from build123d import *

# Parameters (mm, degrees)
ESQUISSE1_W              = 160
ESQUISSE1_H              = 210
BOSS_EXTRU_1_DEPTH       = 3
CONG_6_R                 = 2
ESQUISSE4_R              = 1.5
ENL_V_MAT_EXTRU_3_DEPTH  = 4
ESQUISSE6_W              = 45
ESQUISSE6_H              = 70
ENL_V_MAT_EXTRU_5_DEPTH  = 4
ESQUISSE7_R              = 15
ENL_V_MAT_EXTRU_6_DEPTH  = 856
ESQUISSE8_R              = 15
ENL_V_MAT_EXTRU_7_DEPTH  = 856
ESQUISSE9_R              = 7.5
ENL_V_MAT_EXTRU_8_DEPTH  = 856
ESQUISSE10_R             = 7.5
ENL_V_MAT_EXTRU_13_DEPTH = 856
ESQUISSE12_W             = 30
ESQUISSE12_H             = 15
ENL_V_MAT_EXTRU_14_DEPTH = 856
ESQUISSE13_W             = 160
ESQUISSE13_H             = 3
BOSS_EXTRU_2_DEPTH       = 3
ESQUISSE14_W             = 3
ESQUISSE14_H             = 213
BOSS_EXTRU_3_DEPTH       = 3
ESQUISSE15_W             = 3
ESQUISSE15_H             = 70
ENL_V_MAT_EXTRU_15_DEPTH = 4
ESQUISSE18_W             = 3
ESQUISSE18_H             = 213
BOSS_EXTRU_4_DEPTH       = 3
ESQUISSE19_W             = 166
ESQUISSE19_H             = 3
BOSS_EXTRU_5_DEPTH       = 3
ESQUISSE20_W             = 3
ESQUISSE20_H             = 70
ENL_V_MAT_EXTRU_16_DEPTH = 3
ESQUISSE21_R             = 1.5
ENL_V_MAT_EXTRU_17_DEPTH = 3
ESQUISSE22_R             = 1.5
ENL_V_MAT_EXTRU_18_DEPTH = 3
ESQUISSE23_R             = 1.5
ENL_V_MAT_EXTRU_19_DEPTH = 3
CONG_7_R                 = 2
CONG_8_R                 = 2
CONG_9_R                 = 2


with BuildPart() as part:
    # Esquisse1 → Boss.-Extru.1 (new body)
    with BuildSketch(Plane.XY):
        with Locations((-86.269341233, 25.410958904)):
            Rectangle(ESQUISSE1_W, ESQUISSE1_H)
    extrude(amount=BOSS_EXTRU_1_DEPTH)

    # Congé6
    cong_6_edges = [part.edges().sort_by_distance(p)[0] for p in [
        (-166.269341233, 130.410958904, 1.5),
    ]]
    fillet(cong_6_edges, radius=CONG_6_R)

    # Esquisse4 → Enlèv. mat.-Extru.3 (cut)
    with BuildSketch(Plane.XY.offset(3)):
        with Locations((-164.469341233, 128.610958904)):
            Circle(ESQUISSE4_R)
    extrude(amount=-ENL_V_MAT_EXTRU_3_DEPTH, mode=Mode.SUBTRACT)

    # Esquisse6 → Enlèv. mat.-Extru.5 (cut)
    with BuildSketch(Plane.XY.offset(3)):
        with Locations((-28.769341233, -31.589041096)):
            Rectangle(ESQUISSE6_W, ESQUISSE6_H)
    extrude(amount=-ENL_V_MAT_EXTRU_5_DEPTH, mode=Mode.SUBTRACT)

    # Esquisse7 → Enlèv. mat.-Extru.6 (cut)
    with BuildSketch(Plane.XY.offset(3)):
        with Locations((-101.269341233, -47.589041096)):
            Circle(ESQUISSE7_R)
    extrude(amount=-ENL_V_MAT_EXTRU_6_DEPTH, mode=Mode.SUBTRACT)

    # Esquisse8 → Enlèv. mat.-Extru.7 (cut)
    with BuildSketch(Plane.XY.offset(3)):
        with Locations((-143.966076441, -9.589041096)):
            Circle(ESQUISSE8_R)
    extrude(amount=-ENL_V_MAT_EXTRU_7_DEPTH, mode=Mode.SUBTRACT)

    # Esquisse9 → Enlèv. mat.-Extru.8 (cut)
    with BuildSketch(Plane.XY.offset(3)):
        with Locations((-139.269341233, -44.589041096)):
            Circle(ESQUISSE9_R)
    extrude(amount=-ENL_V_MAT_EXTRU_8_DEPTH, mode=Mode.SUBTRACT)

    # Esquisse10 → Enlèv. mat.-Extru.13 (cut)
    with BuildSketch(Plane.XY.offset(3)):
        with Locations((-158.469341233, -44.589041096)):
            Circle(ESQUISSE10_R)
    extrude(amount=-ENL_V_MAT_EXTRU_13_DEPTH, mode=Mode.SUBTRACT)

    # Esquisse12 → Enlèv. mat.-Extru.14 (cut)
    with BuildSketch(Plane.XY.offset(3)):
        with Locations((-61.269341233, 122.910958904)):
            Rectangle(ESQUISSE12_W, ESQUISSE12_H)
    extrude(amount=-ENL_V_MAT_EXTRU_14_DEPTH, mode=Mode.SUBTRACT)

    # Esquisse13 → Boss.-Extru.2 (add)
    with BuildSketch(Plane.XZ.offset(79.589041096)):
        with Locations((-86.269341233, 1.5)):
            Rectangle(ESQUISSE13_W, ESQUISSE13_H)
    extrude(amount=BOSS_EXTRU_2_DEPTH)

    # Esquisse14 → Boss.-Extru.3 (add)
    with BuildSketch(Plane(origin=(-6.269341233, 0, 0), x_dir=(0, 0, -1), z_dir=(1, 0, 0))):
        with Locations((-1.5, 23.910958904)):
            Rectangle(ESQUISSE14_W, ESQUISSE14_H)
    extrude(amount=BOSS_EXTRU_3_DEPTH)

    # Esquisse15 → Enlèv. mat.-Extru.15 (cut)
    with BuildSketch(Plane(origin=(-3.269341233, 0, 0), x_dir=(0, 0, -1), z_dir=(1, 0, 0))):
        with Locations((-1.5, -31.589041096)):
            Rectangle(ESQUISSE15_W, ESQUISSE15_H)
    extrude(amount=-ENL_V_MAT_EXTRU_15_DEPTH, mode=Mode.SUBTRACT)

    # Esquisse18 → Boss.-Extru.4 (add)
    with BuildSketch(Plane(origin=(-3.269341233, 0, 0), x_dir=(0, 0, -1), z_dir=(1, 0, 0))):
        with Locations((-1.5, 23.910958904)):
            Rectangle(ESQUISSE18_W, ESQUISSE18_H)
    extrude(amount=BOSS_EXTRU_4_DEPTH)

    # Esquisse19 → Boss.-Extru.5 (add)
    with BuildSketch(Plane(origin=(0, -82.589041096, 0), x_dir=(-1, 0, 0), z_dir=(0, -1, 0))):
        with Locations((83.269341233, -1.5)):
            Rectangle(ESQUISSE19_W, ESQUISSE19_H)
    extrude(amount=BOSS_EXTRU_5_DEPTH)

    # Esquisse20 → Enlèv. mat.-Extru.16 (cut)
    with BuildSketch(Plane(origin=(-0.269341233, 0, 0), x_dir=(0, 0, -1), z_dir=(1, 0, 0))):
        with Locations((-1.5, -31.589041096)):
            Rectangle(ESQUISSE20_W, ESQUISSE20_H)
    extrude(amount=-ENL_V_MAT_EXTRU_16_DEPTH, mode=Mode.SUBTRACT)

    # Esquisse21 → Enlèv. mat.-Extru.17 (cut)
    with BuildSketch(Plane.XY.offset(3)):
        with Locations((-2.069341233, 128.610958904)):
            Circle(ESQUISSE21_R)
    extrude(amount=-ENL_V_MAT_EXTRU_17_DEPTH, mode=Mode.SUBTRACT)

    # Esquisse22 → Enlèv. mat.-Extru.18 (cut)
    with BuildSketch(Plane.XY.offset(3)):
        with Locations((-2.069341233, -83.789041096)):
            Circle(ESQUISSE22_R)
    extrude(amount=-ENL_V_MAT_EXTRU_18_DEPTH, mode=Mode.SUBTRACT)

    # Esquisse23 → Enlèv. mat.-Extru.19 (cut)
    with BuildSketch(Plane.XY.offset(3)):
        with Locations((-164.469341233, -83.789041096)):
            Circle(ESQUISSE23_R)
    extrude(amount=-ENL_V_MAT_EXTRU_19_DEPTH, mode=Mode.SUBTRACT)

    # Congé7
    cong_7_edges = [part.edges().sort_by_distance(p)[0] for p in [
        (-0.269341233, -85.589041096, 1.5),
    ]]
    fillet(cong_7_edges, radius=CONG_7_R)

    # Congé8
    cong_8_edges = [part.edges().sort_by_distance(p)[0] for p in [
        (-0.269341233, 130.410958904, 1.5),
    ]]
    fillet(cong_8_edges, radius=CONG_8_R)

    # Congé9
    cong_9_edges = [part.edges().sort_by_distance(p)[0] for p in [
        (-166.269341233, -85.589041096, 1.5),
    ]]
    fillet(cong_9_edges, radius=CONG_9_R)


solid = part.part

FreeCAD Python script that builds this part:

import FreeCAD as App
import Part
import Sketcher

V = App.Vector
Q = App.Units.Quantity


def edges_at(feature, points):
    """Names of the edges that pass closest to the given points."""
    edges = feature.Shape.Edges
    near = lambda p: min(range(len(edges)), key=lambda i: edges[i].distToShape(Part.Vertex(*p))[0])
    return sorted({f"Edge{near(p) + 1}" for p in points})


def add_polygon(sketch, points):
    """Adds a closed chain of lines whose ends are joined by coincident constraints."""
    first, n = sketch.GeometryCount, len(points)
    for a, b in zip(points, points[1:] + points[:1]):
        sketch.addGeometry(Part.LineSegment(App.Vector(*a, 0), App.Vector(*b, 0)), False)
    for i in range(n):
        sketch.addConstraint(Sketcher.Constraint("Coincident", first + i, 2, first + (i + 1) % n, 1))

doc = App.newDocument("Part")
body = doc.addObject("PartDesign::Body", "Body")

sketch1 = doc.addObject("Sketcher::SketchObject", "Sketch")
body.addObject(sketch1)
sketch1.AttachmentSupport = (doc.XY_Plane, [""])
sketch1.MapMode = "FlatFace"
add_polygon(sketch1, [(-166, 130), (-166, -80), (-6, -80), (-6, 130)])
sketch1.addConstraint(Sketcher.Constraint("Vertical", 0))
sketch1.addConstraint(Sketcher.Constraint("Horizontal", 1))
sketch1.addConstraint(Sketcher.Constraint("Vertical", 2))
sketch1.addConstraint(Sketcher.Constraint("Horizontal", 3))
sketch1.addConstraint(Sketcher.Constraint("DistanceX", 1, 1, 1, 2, Q("160 mm")))
sketch1.addConstraint(Sketcher.Constraint("DistanceY", 0, 2, 0, 1, Q("210 mm")))
sketch1.addConstraint(Sketcher.Constraint("DistanceX", 0, 2, -1, 1, Q("166.269341 mm")))
sketch1.addConstraint(Sketcher.Constraint("DistanceY", 0, 2, -1, 1, Q("79.589041 mm")))
pad1 = doc.addObject("PartDesign::Pad", "Pad")
body.addObject(pad1)
pad1.Profile = sketch1
pad1.Length = 3
doc.recompute()

fillet = doc.addObject("PartDesign::Fillet", "Fillet")
body.addObject(fillet)
fillet.Base = (pad1, edges_at(pad1, [(-166.269, 130.411, 1.5)]))
fillet.Radius = 2

sketch2 = doc.addObject("Sketcher::SketchObject", "Sketch001")
body.addObject(sketch2)
sketch2.AttachmentSupport = (doc.XY_Plane, [""])
sketch2.MapMode = "FlatFace"
sketch2.AttachmentOffset = App.Placement(V(0, 0, 3), App.Rotation())
sketch2.addGeometry(Part.Circle(V(-164.5, 128.6, 0), V(0, 0, 1), 1.5), False)
sketch2.addConstraint(Sketcher.Constraint("Diameter", 0, Q("3 mm")))
sketch2.addConstraint(Sketcher.Constraint("DistanceX", 0, 3, -1, 1, Q("164.469341 mm")))
sketch2.addConstraint(Sketcher.Constraint("DistanceY", -1, 1, 0, 3, Q("128.610959 mm")))
pocket1 = doc.addObject("PartDesign::Pocket", "Pocket")
body.addObject(pocket1)
pocket1.Profile = sketch2
pocket1.Length = 4

sketch3 = doc.addObject("Sketcher::SketchObject", "Sketch002")
body.addObject(sketch3)
sketch3.AttachmentSupport = (doc.XY_Plane, [""])
sketch3.MapMode = "FlatFace"
sketch3.AttachmentOffset = App.Placement(V(0, 0, 3), App.Rotation())
add_polygon(sketch3, [(-51, 3), (-51, -67), (-6, -67), (-6, 3)])
sketch3.addConstraint(Sketcher.Constraint("Vertical", 0))
sketch3.addConstraint(Sketcher.Constraint("Horizontal", 1))
sketch3.addConstraint(Sketcher.Constraint("Vertical", 2))
sketch3.addConstraint(Sketcher.Constraint("Horizontal", 3))
sketch3.addConstraint(Sketcher.Constraint("DistanceX", 1, 1, 1, 2, Q("45 mm")))
sketch3.addConstraint(Sketcher.Constraint("DistanceY", 0, 2, 0, 1, Q("70 mm")))
sketch3.addConstraint(Sketcher.Constraint("DistanceX", 0, 2, -1, 1, Q("51.269341 mm")))
sketch3.addConstraint(Sketcher.Constraint("DistanceY", 0, 2, -1, 1, Q("66.589041 mm")))
pocket2 = doc.addObject("PartDesign::Pocket", "Pocket001")
body.addObject(pocket2)
pocket2.Profile = sketch3
pocket2.Length = 4

sketch4 = doc.addObject("Sketcher::SketchObject", "Sketch003")
body.addObject(sketch4)
sketch4.AttachmentSupport = (doc.XY_Plane, [""])
sketch4.MapMode = "FlatFace"
sketch4.AttachmentOffset = App.Placement(V(0, 0, 3), App.Rotation())
sketch4.addGeometry(Part.Circle(V(-101, -48, 0), V(0, 0, 1), 15), False)
sketch4.addConstraint(Sketcher.Constraint("Diameter", 0, Q("30 mm")))
sketch4.addConstraint(Sketcher.Constraint("DistanceX", 0, 3, -1, 1, Q("101.269341 mm")))
sketch4.addConstraint(Sketcher.Constraint("DistanceY", 0, 3, -1, 1, Q("47.589041 mm")))
pocket3 = doc.addObject("PartDesign::Pocket", "Pocket002")
body.addObject(pocket3)
pocket3.Profile = sketch4
pocket3.Length = 856

sketch5 = doc.addObject("Sketcher::SketchObject", "Sketch004")
body.addObject(sketch5)
sketch5.AttachmentSupport = (doc.XY_Plane, [""])
sketch5.MapMode = "FlatFace"
sketch5.AttachmentOffset = App.Placement(V(0, 0, 3), App.Rotation())
sketch5.addGeometry(Part.Circle(V(-144, -10, 0), V(0, 0, 1), 15), False)
sketch5.addConstraint(Sketcher.Constraint("Diameter", 0, Q("30 mm")))
sketch5.addConstraint(Sketcher.Constraint("DistanceY", 0, 3, -1, 1, Q("9.589041 mm")))
sketch5.addConstraint(Sketcher.Constraint("DistanceX", 0, 3, -1, 1, Q("143.966076 mm")))
pocket4 = doc.addObject("PartDesign::Pocket", "Pocket003")
body.addObject(pocket4)
pocket4.Profile = sketch5
pocket4.Length = 856

sketch6 = doc.addObject("Sketcher::SketchObject", "Sketch005")
body.addObject(sketch6)
sketch6.AttachmentSupport = (doc.XY_Plane, [""])
sketch6.MapMode = "FlatFace"
sketch6.AttachmentOffset = App.Placement(V(0, 0, 3), App.Rotation())
sketch6.addGeometry(Part.Circle(V(-139, -45, 0), V(0, 0, 1), 8), False)
sketch6.addConstraint(Sketcher.Constraint("Diameter", 0, Q("15 mm")))
sketch6.addConstraint(Sketcher.Constraint("DistanceX", 0, 3, -1, 1, Q("139.269341 mm")))
sketch6.addConstraint(Sketcher.Constraint("DistanceY", 0, 3, -1, 1, Q("44.589041 mm")))
pocket5 = doc.addObject("PartDesign::Pocket", "Pocket004")
body.addObject(pocket5)
pocket5.Profile = sketch6
pocket5.Length = 856

sketch7 = doc.addObject("Sketcher::SketchObject", "Sketch006")
body.addObject(sketch7)
sketch7.AttachmentSupport = (doc.XY_Plane, [""])
sketch7.MapMode = "FlatFace"
sketch7.AttachmentOffset = App.Placement(V(0, 0, 3), App.Rotation())
sketch7.addGeometry(Part.Circle(V(-158, -45, 0), V(0, 0, 1), 8), False)
sketch7.addConstraint(Sketcher.Constraint("Diameter", 0, Q("15 mm")))
sketch7.addConstraint(Sketcher.Constraint("DistanceX", 0, 3, -1, 1, Q("158.469341 mm")))
sketch7.addConstraint(Sketcher.Constraint("DistanceY", 0, 3, -1, 1, Q("44.589041 mm")))
pocket6 = doc.addObject("PartDesign::Pocket", "Pocket005")
body.addObject(pocket6)
pocket6.Profile = sketch7
pocket6.Length = 856

sketch8 = doc.addObject("Sketcher::SketchObject", "Sketch007")
body.addObject(sketch8)
sketch8.AttachmentSupport = (doc.XY_Plane, [""])
sketch8.MapMode = "FlatFace"
sketch8.AttachmentOffset = App.Placement(V(0, 0, 3), App.Rotation())
add_polygon(sketch8, [(-76, 130), (-76, 115), (-46, 115), (-46, 130)])
sketch8.addConstraint(Sketcher.Constraint("Vertical", 0))
sketch8.addConstraint(Sketcher.Constraint("Horizontal", 1))
sketch8.addConstraint(Sketcher.Constraint("Vertical", 2))
sketch8.addConstraint(Sketcher.Constraint("Horizontal", 3))
sketch8.addConstraint(Sketcher.Constraint("DistanceX", 1, 1, 1, 2, Q("30 mm")))
sketch8.addConstraint(Sketcher.Constraint("DistanceY", 0, 2, 0, 1, Q("15 mm")))
sketch8.addConstraint(Sketcher.Constraint("DistanceX", 0, 2, -1, 1, Q("76.269341 mm")))
sketch8.addConstraint(Sketcher.Constraint("DistanceY", -1, 1, 0, 2, Q("115.410959 mm")))
pocket7 = doc.addObject("PartDesign::Pocket", "Pocket006")
body.addObject(pocket7)
pocket7.Profile = sketch8
pocket7.Length = 856

sketch9 = doc.addObject("Sketcher::SketchObject", "Sketch008")
body.addObject(sketch9)
sketch9.AttachmentSupport = (doc.XZ_Plane, [""])
sketch9.MapMode = "FlatFace"
sketch9.AttachmentOffset = App.Placement(V(0, 0, 79.589041), App.Rotation())
add_polygon(sketch9, [(-166.3, 3), (-166.3, 0), (-6.3, 0), (-6.3, 3)])
sketch9.addConstraint(Sketcher.Constraint("Vertical", 0))
sketch9.addConstraint(Sketcher.Constraint("Horizontal", 1))
sketch9.addConstraint(Sketcher.Constraint("Vertical", 2))
sketch9.addConstraint(Sketcher.Constraint("Horizontal", 3))
sketch9.addConstraint(Sketcher.Constraint("PointOnObject", 0, 2, -1))
sketch9.addConstraint(Sketcher.Constraint("DistanceX", 1, 1, 1, 2, Q("160 mm")))
sketch9.addConstraint(Sketcher.Constraint("DistanceY", 0, 2, 0, 1, Q("3 mm")))
sketch9.addConstraint(Sketcher.Constraint("DistanceX", 0, 2, -1, 1, Q("166.269341 mm")))
pad2 = doc.addObject("PartDesign::Pad", "Pad001")
body.addObject(pad2)
pad2.Profile = sketch9
pad2.Length = 3

sketch10 = doc.addObject("Sketcher::SketchObject", "Sketch009")
body.addObject(sketch10)
sketch10.AttachmentSupport = (doc.YZ_Plane, [""])
sketch10.MapMode = "FlatFace"
sketch10.AttachmentOffset = App.Placement(V(0, 0, -6.269341), App.Rotation())
add_polygon(sketch10, [(130.4, 3), (-82.6, 3), (-82.6, 0), (130.4, 0)])
sketch10.addConstraint(Sketcher.Constraint("Horizontal", 0))
sketch10.addConstraint(Sketcher.Constraint("Vertical", 1))
sketch10.addConstraint(Sketcher.Constraint("Horizontal", 2))
sketch10.addConstraint(Sketcher.Constraint("Vertical", 3))
sketch10.addConstraint(Sketcher.Constraint("PointOnObject", 1, 2, -1))
sketch10.addConstraint(Sketcher.Constraint("DistanceX", 0, 2, 0, 1, Q("213 mm")))
sketch10.addConstraint(Sketcher.Constraint("DistanceY", 1, 2, 1, 1, Q("3 mm")))
sketch10.addConstraint(Sketcher.Constraint("DistanceX", 0, 2, -1, 1, Q("82.589041 mm")))
pad3 = doc.addObject("PartDesign::Pad", "Pad002")
body.addObject(pad3)
pad3.Profile = sketch10
pad3.Length = 3

sketch11 = doc.addObject("Sketcher::SketchObject", "Sketch010")
body.addObject(sketch11)
sketch11.AttachmentSupport = (doc.YZ_Plane, [""])
sketch11.MapMode = "FlatFace"
sketch11.AttachmentOffset = App.Placement(V(0, 0, -3.269341), App.Rotation())
add_polygon(sketch11, [(3.4, 3), (-66.6, 3), (-66.6, 0), (3.4, 0)])
sketch11.addConstraint(Sketcher.Constraint("Horizontal", 0))
sketch11.addConstraint(Sketcher.Constraint("Vertical", 1))
sketch11.addConstraint(Sketcher.Constraint("Horizontal", 2))
sketch11.addConstraint(Sketcher.Constraint("Vertical", 3))
sketch11.addConstraint(Sketcher.Constraint("PointOnObject", 1, 2, -1))
sketch11.addConstraint(Sketcher.Constraint("DistanceX", 0, 2, 0, 1, Q("70 mm")))
sketch11.addConstraint(Sketcher.Constraint("DistanceY", 1, 2, 1, 1, Q("3 mm")))
sketch11.addConstraint(Sketcher.Constraint("DistanceX", 0, 2, -1, 1, Q("66.589041 mm")))
pocket8 = doc.addObject("PartDesign::Pocket", "Pocket007")
body.addObject(pocket8)
pocket8.Profile = sketch11
pocket8.Length = 4

sketch12 = doc.addObject("Sketcher::SketchObject", "Sketch011")
body.addObject(sketch12)
sketch12.AttachmentSupport = (doc.YZ_Plane, [""])
sketch12.MapMode = "FlatFace"
sketch12.AttachmentOffset = App.Placement(V(0, 0, -3.269341), App.Rotation())
add_polygon(sketch12, [(130.4, 3), (-82.6, 3), (-82.6, 0), (130.4, 0)])
sketch12.addConstraint(Sketcher.Constraint("Horizontal", 0))
sketch12.addConstraint(Sketcher.Constraint("Vertical", 1))
sketch12.addConstraint(Sketcher.Constraint("Horizontal", 2))
sketch12.addConstraint(Sketcher.Constraint("Vertical", 3))
sketch12.addConstraint(Sketcher.Constraint("PointOnObject", 1, 2, -1))
sketch12.addConstraint(Sketcher.Constraint("DistanceX", 0, 2, 0, 1, Q("213 mm")))
sketch12.addConstraint(Sketcher.Constraint("DistanceY", 1, 2, 1, 1, Q("3 mm")))
sketch12.addConstraint(Sketcher.Constraint("DistanceX", 0, 2, -1, 1, Q("82.589041 mm")))
pad4 = doc.addObject("PartDesign::Pad", "Pad003")
body.addObject(pad4)
pad4.Profile = sketch12
pad4.Length = 3

sketch13 = doc.addObject("Sketcher::SketchObject", "Sketch012")
body.addObject(sketch13)
sketch13.AttachmentSupport = (doc.XZ_Plane, [""])
sketch13.MapMode = "FlatFace"
sketch13.AttachmentOffset = App.Placement(V(0, 0, 82.589041), App.Rotation())
add_polygon(sketch13, [(-0.3, 0), (-0.3, 3), (-166.3, 3), (-166.3, 0)])
sketch13.addConstraint(Sketcher.Constraint("Vertical", 0))
sketch13.addConstraint(Sketcher.Constraint("Horizontal", 1))
sketch13.addConstraint(Sketcher.Constraint("Vertical", 2))
sketch13.addConstraint(Sketcher.Constraint("Horizontal", 3))
sketch13.addConstraint(Sketcher.Constraint("PointOnObject", 2, 2, -1))
sketch13.addConstraint(Sketcher.Constraint("DistanceX", 1, 2, 1, 1, Q("166 mm")))
sketch13.addConstraint(Sketcher.Constraint("DistanceY", 0, 1, 0, 2, Q("3 mm")))
sketch13.addConstraint(Sketcher.Constraint("DistanceX", 0, 2, -1, 1, Q("0.269341 mm")))
pad5 = doc.addObject("PartDesign::Pad", "Pad004")
body.addObject(pad5)
pad5.Profile = sketch13
pad5.Length = 3

sketch14 = doc.addObject("Sketcher::SketchObject", "Sketch013")
body.addObject(sketch14)
sketch14.AttachmentSupport = (doc.YZ_Plane, [""])
sketch14.MapMode = "FlatFace"
sketch14.AttachmentOffset = App.Placement(V(0, 0, -0.269341), App.Rotation())
add_polygon(sketch14, [(3.4, 3), (-66.6, 3), (-66.6, 0), (3.4, 0)])
sketch14.addConstraint(Sketcher.Constraint("Horizontal", 0))
sketch14.addConstraint(Sketcher.Constraint("Vertical", 1))
sketch14.addConstraint(Sketcher.Constraint("Horizontal", 2))
sketch14.addConstraint(Sketcher.Constraint("Vertical", 3))
sketch14.addConstraint(Sketcher.Constraint("PointOnObject", 1, 2, -1))
sketch14.addConstraint(Sketcher.Constraint("DistanceX", 0, 2, 0, 1, Q("70 mm")))
sketch14.addConstraint(Sketcher.Constraint("DistanceY", 1, 2, 1, 1, Q("3 mm")))
sketch14.addConstraint(Sketcher.Constraint("DistanceX", 0, 2, -1, 1, Q("66.589041 mm")))
pocket9 = doc.addObject("PartDesign::Pocket", "Pocket008")
body.addObject(pocket9)
pocket9.Profile = sketch14
pocket9.Length = 3

sketch15 = doc.addObject("Sketcher::SketchObject", "Sketch014")
body.addObject(sketch15)
sketch15.AttachmentSupport = (doc.XY_Plane, [""])
sketch15.MapMode = "FlatFace"
sketch15.AttachmentOffset = App.Placement(V(0, 0, 3), App.Rotation())
sketch15.addGeometry(Part.Circle(V(-2.1, 128.6, 0), V(0, 0, 1), 1.5), False)
sketch15.addConstraint(Sketcher.Constraint("Diameter", 0, Q("3 mm")))
sketch15.addConstraint(Sketcher.Constraint("DistanceX", 0, 3, -1, 1, Q("2.069341 mm")))
sketch15.addConstraint(Sketcher.Constraint("DistanceY", -1, 1, 0, 3, Q("128.610959 mm")))
pocket10 = doc.addObject("PartDesign::Pocket", "Pocket009")
body.addObject(pocket10)
pocket10.Profile = sketch15
pocket10.Length = 3

sketch16 = doc.addObject("Sketcher::SketchObject", "Sketch015")
body.addObject(sketch16)
sketch16.AttachmentSupport = (doc.XY_Plane, [""])
sketch16.MapMode = "FlatFace"
sketch16.AttachmentOffset = App.Placement(V(0, 0, 3), App.Rotation())
sketch16.addGeometry(Part.Circle(V(-2.1, -83.8, 0), V(0, 0, 1), 1.5), False)
sketch16.addConstraint(Sketcher.Constraint("Diameter", 0, Q("3 mm")))
sketch16.addConstraint(Sketcher.Constraint("DistanceX", 0, 3, -1, 1, Q("2.069341 mm")))
sketch16.addConstraint(Sketcher.Constraint("DistanceY", 0, 3, -1, 1, Q("83.789041 mm")))
pocket11 = doc.addObject("PartDesign::Pocket", "Pocket010")
body.addObject(pocket11)
pocket11.Profile = sketch16
pocket11.Length = 3

sketch17 = doc.addObject("Sketcher::SketchObject", "Sketch016")
body.addObject(sketch17)
sketch17.AttachmentSupport = (doc.XY_Plane, [""])
sketch17.MapMode = "FlatFace"
sketch17.AttachmentOffset = App.Placement(V(0, 0, 3), App.Rotation())
sketch17.addGeometry(Part.Circle(V(-164.5, -83.8, 0), V(0, 0, 1), 1.5), False)
sketch17.addConstraint(Sketcher.Constraint("Diameter", 0, Q("3 mm")))
sketch17.addConstraint(Sketcher.Constraint("DistanceX", 0, 3, -1, 1, Q("164.469341 mm")))
sketch17.addConstraint(Sketcher.Constraint("DistanceY", 0, 3, -1, 1, Q("83.789041 mm")))
pocket12 = doc.addObject("PartDesign::Pocket", "Pocket011")
body.addObject(pocket12)
pocket12.Profile = sketch17
pocket12.Length = 3
doc.recompute()

fillet2 = doc.addObject("PartDesign::Fillet", "Fillet001")
body.addObject(fillet2)
fillet2.Base = (pocket12, edges_at(pocket12, [(-0.269, -85.589, 1.5)]))
fillet2.Radius = 2
doc.recompute()

fillet3 = doc.addObject("PartDesign::Fillet", "Fillet002")
body.addObject(fillet3)
fillet3.Base = (fillet2, edges_at(fillet2, [(-0.269, 130.411, 1.5)]))
fillet3.Radius = 2
doc.recompute()

fillet4 = doc.addObject("PartDesign::Fillet", "Fillet003")
body.addObject(fillet4)
fillet4.Base = (fillet3, edges_at(fillet3, [(-166.269, -85.589, 1.5)]))
fillet4.Radius = 2

doc.recompute()
